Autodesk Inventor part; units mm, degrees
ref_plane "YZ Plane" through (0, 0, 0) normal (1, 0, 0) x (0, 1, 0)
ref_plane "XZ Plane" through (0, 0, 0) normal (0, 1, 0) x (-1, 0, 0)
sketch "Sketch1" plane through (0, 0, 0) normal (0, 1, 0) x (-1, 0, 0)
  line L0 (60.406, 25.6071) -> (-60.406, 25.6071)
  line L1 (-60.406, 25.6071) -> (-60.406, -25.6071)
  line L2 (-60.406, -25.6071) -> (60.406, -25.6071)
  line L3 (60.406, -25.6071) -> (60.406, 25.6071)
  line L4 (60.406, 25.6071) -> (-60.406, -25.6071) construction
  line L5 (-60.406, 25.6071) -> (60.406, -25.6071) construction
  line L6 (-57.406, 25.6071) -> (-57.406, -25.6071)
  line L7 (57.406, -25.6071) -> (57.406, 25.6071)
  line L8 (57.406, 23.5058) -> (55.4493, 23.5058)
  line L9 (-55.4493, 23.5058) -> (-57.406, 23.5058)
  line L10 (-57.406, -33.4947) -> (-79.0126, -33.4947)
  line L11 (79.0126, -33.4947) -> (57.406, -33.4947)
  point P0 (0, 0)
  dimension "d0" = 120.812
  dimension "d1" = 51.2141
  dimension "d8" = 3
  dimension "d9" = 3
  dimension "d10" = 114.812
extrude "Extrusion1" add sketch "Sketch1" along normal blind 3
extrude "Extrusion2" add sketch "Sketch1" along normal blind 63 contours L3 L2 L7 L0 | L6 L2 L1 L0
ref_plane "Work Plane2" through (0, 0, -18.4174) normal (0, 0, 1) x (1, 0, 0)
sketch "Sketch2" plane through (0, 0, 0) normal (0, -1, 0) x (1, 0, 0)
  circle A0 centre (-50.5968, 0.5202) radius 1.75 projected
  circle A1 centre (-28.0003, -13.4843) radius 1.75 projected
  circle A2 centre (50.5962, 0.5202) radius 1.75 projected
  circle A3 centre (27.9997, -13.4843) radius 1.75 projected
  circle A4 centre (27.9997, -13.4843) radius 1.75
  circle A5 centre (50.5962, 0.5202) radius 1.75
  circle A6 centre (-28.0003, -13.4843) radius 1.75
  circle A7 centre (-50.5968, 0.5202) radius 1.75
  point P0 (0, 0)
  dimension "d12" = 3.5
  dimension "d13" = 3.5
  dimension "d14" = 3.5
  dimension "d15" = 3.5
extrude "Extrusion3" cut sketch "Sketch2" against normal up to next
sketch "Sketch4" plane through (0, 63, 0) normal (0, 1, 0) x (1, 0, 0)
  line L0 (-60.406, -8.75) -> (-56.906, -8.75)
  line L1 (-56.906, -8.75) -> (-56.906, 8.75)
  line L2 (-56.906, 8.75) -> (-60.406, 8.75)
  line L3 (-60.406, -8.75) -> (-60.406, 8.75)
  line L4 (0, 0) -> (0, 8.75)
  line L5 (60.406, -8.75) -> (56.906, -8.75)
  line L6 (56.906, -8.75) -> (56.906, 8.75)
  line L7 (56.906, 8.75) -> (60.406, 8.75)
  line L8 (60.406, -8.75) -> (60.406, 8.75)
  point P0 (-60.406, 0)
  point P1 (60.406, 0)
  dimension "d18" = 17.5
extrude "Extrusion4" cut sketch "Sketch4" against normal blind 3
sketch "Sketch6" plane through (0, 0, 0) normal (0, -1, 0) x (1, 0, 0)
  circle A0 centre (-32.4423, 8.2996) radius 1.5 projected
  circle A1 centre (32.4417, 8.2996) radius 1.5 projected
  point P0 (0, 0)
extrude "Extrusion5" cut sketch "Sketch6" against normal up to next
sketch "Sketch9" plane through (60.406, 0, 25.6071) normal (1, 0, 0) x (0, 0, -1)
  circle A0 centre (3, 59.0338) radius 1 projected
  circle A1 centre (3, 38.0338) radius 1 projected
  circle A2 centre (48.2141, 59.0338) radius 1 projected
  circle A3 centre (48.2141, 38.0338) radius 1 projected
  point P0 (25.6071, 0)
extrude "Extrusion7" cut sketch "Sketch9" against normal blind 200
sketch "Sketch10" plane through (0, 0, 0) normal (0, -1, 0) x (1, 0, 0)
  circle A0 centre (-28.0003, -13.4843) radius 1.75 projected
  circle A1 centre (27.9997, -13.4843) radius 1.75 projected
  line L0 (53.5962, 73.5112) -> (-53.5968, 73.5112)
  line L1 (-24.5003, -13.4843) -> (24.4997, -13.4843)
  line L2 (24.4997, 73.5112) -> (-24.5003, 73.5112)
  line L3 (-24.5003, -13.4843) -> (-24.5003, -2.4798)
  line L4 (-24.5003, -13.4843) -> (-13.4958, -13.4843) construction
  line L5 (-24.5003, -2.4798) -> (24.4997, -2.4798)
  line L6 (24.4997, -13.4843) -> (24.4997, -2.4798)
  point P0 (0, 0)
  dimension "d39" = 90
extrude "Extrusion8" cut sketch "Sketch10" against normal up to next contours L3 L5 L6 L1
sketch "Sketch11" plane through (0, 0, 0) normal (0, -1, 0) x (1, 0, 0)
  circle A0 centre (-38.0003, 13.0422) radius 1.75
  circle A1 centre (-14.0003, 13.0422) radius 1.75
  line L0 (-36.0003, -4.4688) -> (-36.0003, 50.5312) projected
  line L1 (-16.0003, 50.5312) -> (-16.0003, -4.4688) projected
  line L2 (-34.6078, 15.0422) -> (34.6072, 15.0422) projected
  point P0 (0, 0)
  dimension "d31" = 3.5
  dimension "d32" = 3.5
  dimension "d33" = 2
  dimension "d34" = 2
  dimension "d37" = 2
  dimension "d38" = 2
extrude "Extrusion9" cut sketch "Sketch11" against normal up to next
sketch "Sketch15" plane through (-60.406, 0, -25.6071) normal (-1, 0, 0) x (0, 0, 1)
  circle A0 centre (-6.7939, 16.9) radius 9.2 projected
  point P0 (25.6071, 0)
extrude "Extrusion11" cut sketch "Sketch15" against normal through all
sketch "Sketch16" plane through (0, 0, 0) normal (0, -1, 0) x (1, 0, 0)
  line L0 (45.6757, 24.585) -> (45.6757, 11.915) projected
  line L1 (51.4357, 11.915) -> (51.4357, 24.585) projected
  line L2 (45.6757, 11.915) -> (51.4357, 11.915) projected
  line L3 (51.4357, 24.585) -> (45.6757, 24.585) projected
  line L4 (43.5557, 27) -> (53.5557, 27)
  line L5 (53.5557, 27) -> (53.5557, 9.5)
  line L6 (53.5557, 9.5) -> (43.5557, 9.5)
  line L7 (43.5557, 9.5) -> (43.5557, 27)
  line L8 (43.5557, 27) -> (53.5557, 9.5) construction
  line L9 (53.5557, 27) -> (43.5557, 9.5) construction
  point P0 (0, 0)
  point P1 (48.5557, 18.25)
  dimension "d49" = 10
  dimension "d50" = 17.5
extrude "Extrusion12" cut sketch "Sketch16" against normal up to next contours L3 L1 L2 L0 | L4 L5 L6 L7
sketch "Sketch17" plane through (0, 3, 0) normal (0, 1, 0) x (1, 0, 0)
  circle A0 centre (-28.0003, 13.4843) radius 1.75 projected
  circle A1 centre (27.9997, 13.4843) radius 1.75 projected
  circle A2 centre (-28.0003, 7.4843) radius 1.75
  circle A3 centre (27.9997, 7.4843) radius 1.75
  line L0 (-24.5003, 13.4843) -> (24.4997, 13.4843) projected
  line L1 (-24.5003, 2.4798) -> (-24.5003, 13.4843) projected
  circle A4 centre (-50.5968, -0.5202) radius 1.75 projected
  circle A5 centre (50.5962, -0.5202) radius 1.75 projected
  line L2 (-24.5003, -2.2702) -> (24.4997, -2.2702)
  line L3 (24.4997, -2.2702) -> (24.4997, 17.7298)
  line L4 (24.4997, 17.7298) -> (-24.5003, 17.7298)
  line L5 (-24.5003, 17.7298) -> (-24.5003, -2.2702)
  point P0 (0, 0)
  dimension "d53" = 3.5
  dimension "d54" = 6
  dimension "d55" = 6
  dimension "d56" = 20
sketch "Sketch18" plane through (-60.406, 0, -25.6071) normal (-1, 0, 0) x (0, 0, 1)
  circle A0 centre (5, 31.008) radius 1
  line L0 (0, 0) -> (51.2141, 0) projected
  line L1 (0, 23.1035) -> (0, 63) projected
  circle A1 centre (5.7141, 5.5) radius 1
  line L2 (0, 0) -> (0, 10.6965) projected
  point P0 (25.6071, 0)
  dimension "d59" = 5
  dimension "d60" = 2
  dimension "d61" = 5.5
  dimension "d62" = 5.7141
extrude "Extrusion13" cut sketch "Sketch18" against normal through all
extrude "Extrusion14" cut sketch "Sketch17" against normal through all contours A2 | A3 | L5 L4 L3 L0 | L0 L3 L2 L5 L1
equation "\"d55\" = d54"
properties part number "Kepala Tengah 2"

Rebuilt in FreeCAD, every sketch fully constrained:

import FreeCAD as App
import Part
import Sketcher
from FreeCAD import Vector

doc = App.newDocument("Part")
body = doc.addObject("PartDesign::Body", "Body")

# Sketch on XZ plane
sketch1 = body.newObject("Sketcher::SketchObject", "Sketch")
sketch1.AttachmentSupport = (doc.getObject("XZ_Plane"), [""])
sketch1.MapMode = "FlatFace"
sketch1.addGeometry(Part.LineSegment(Vector(-60, -26, 0), Vector(-60, 26, 0)), False)
sketch1.addGeometry(Part.LineSegment(Vector(-60, 26, 0), Vector(60, 26, 0)), False)
sketch1.addGeometry(Part.LineSegment(Vector(60, 26, 0), Vector(60, -26, 0)), False)
sketch1.addGeometry(Part.LineSegment(Vector(60, -26, 0), Vector(-60, -26, 0)), False)
sketch1.addConstraint(Sketcher.Constraint("Coincident", 0, 2, 1, 1))
sketch1.addConstraint(Sketcher.Constraint("Coincident", 1, 2, 2, 1))
sketch1.addConstraint(Sketcher.Constraint("Coincident", 2, 2, 3, 1))
sketch1.addConstraint(Sketcher.Constraint("Coincident", 3, 2, 0, 1))
sketch1.addConstraint(Sketcher.Constraint("Vertical", 0))
sketch1.addConstraint(Sketcher.Constraint("Horizontal", 1))
sketch1.addConstraint(Sketcher.Constraint("Vertical", 2))
sketch1.addConstraint(Sketcher.Constraint("Horizontal", 3))
sketch1.addConstraint(Sketcher.Constraint("Symmetric", 0, 2, 2, 2, -1, 1))
sketch1.addConstraint(Sketcher.Constraint("DistanceX", 1, 1, 1, 2, 120.812))
sketch1.addConstraint(Sketcher.Constraint("DistanceY", 0, 1, 0, 2, 51.2142))
pad1 = body.newObject("PartDesign::Pad", "Pad")
pad1.Profile = sketch1
pad1.Length = 3
pad1.Reversed = True

# Sketch on XZ plane
sketch2 = body.newObject("Sketcher::SketchObject", "Sketch001")
sketch2.AttachmentSupport = (doc.getObject("XZ_Plane"), [""])
sketch2.MapMode = "FlatFace"
sketch2.addGeometry(Part.LineSegment(Vector(-60.4, -25.6, 0), Vector(-60.4, 25.6, 0)), False)
sketch2.addGeometry(Part.LineSegment(Vector(-60.4, 25.6, 0), Vector(-57.4, 25.6, 0)), False)
sketch2.addGeometry(Part.LineSegment(Vector(-57.4, 25.6, 0), Vector(-57.4, -25.6, 0)), False)
sketch2.addGeometry(Part.LineSegment(Vector(-57.4, -25.6, 0), Vector(-60.4, -25.6, 0)), False)
sketch2.addGeometry(Part.LineSegment(Vector(57.4, -25.6, 0), Vector(57.4, 25.6, 0)), False)
sketch2.addGeometry(Part.LineSegment(Vector(57.4, 25.6, 0), Vector(60.4, 25.6, 0)), False)
sketch2.addGeometry(Part.LineSegment(Vector(60.4, 25.6, 0), Vector(60.4, -25.6, 0)), False)
sketch2.addGeometry(Part.LineSegment(Vector(60.4, -25.6, 0), Vector(57.4, -25.6, 0)), False)
sketch2.addConstraint(Sketcher.Constraint("Coincident", 0, 2, 1, 1))
sketch2.addConstraint(Sketcher.Constraint("Coincident", 1, 2, 2, 1))
sketch2.addConstraint(Sketcher.Constraint("Coincident", 2, 2, 3, 1))
sketch2.addConstraint(Sketcher.Constraint("Coincident", 3, 2, 0, 1))
sketch2.addConstraint(Sketcher.Constraint("Coincident", 4, 2, 5, 1))
sketch2.addConstraint(Sketcher.Constraint("Coincident", 5, 2, 6, 1))
sketch2.addConstraint(Sketcher.Constraint("Coincident", 6, 2, 7, 1))
sketch2.addConstraint(Sketcher.Constraint("Coincident", 7, 2, 4, 1))
sketch2.addConstraint(Sketcher.Constraint("Vertical", 0))
sketch2.addConstraint(Sketcher.Constraint("Horizontal", 1))
sketch2.addConstraint(Sketcher.Constraint("Vertical", 2))
sketch2.addConstraint(Sketcher.Constraint("Horizontal", 3))
sketch2.addConstraint(Sketcher.Constraint("Vertical", 4))
sketch2.addConstraint(Sketcher.Constraint("Horizontal", 5))
sketch2.addConstraint(Sketcher.Constraint("Vertical", 6))
sketch2.addConstraint(Sketcher.Constraint("Horizontal", 7))
sketch2.addConstraint(Sketcher.Constraint("Symmetric", 2, 2, 4, 2, -1, 1))
sketch2.addConstraint(Sketcher.Constraint("Symmetric", 0, 2, 6, 2, -1, 1))
sketch2.addConstraint(Sketcher.Constraint("Horizontal", 1, 2, 4, 2))
sketch2.addConstraint(Sketcher.Constraint("DistanceX", 1, 1, 1, 2, 3.0))
sketch2.addConstraint(Sketcher.Constraint("DistanceY", 0, 1, 0, 2, 51.2142))
sketch2.addConstraint(Sketcher.Constraint("DistanceX", 1, 2, 4, 2, 114.812))
pad2 = body.newObject("PartDesign::Pad", "Pad001")
pad2.Profile = sketch2
pad2.Length = 63
pad2.Reversed = True

# Sketch on XZ plane
sketch3 = body.newObject("Sketcher::SketchObject", "Sketch002")
sketch3.AttachmentSupport = (doc.getObject("XZ_Plane"), [""])
sketch3.MapMode = "FlatFace"
sketch3.addGeometry(Part.Circle(Vector(-50.6, 0.5, 0), Vector(0, 0, 1), 1.8), False)
sketch3.addGeometry(Part.Circle(Vector(-28, -13.5, 0), Vector(0, 0, 1), 1.8), False)
sketch3.addGeometry(Part.Circle(Vector(50.6, 0.5, 0), Vector(0, 0, 1), 1.8), False)
sketch3.addGeometry(Part.Circle(Vector(28, -13.5, 0), Vector(0, 0, 1), 1.8), False)
sketch3.addConstraint(Sketcher.Constraint("Equal", 0, 1))
sketch3.addConstraint(Sketcher.Constraint("Equal", 1, 2))
sketch3.addConstraint(Sketcher.Constraint("Equal", 2, 3))
sketch3.addConstraint(Sketcher.Constraint("Horizontal", 0, 3, 2, 3))
sketch3.addConstraint(Sketcher.Constraint("Horizontal", 1, 3, 3, 3))
sketch3.addConstraint(Sketcher.Constraint("Diameter", 0, 3.5))
sketch3.addConstraint(Sketcher.Constraint("DistanceX", 1, 3, 3, 3, 56.0))
sketch3.addConstraint(Sketcher.Constraint("DistanceX", 0, 3, 2, 3, 101.193))
sketch3.addConstraint(Sketcher.Constraint("DistanceX", 0, 3, -1, 1, 50.5968))
sketch3.addConstraint(Sketcher.Constraint("DistanceY", -1, 1, 0, 3, 0.5202))
sketch3.addConstraint(Sketcher.Constraint("DistanceX", 1, 3, -1, 1, 28.0003))
sketch3.addConstraint(Sketcher.Constraint("DistanceY", 1, 3, -1, 1, 13.4843))
pocket1 = body.newObject("PartDesign::Pocket", "Pocket")
pocket1.Profile = sketch3
pocket1.Type = "UpToFirst"

# Sketch on XZ plane
sketch4 = body.newObject("Sketcher::SketchObject", "Sketch003")
sketch4.AttachmentSupport = (doc.getObject("XZ_Plane"), [""])
sketch4.MapMode = "FlatFace"
sketch4.AttachmentOffset = App.Placement(Vector(0, 0, -63), App.Rotation())
sketch4.addGeometry(Part.LineSegment(Vector(-60.4, -8.8, 0), Vector(-60.4, 8.8, 0)), False)
sketch4.addGeometry(Part.LineSegment(Vector(-60.4, 8.8, 0), Vector(-56.9, 8.8, 0)), False)
sketch4.addGeometry(Part.LineSegment(Vector(-56.9, 8.8, 0), Vector(-56.9, -8.8, 0)), False)
sketch4.addGeometry(Part.LineSegment(Vector(-56.9, -8.8, 0), Vector(-60.4, -8.8, 0)), False)
sketch4.addGeometry(Part.LineSegment(Vector(56.9, 8.8, 0), Vector(60.4, 8.8, 0)), False)
sketch4.addGeometry(Part.LineSegment(Vector(60.4, 8.8, 0), Vector(60.4, -8.8, 0)), False)
sketch4.addGeometry(Part.LineSegment(Vector(60.4, -8.8, 0), Vector(56.9, -8.8, 0)), False)
sketch4.addGeometry(Part.LineSegment(Vector(56.9, -8.8, 0), Vector(56.9, 8.8, 0)), False)
sketch4.addConstraint(Sketcher.Constraint("Coincident", 0, 2, 1, 1))
sketch4.addConstraint(Sketcher.Constraint("Coincident", 1, 2, 2, 1))
sketch4.addConstraint(Sketcher.Constraint("Coincident", 2, 2, 3, 1))
sketch4.addConstraint(Sketcher.Constraint("Coincident", 3, 2, 0, 1))
sketch4.addConstraint(Sketcher.Constraint("Coincident", 4, 2, 5, 1))
sketch4.addConstraint(Sketcher.Constraint("Coincident", 5, 2, 6, 1))
sketch4.addConstraint(Sketcher.Constraint("Coincident", 6, 2, 7, 1))
sketch4.addConstraint(Sketcher.Constraint("Coincident", 7, 2, 4, 1))
sketch4.addConstraint(Sketcher.Constraint("Vertical", 0))
sketch4.addConstraint(Sketcher.Constraint("Horizontal", 1))
sketch4.addConstraint(Sketcher.Constraint("Vertical", 2))
sketch4.addConstraint(Sketcher.Constraint("Horizontal", 3))
sketch4.addConstraint(Sketcher.Constraint("Horizontal", 4))
sketch4.addConstraint(Sketcher.Constraint("Vertical", 5))
sketch4.addConstraint(Sketcher.Constraint("Horizontal", 6))
sketch4.addConstraint(Sketcher.Constraint("Vertical", 7))
sketch4.addConstraint(Sketcher.Constraint("Symmetric", 3, 2, 4, 2, -1, 1))
sketch4.addConstraint(Sketcher.Constraint("Symmetric", 1, 2, 6, 2, -1, 1))
sketch4.addConstraint(Sketcher.Constraint("Horizontal", 1, 2, 4, 2))
sketch4.addConstraint(Sketcher.Constraint("DistanceY", 0, 1, 0, 2, 17.5))
sketch4.addConstraint(Sketcher.Constraint("DistanceX", 1, 1, 1, 2, 3.5))
sketch4.addConstraint(Sketcher.Constraint("DistanceX", 0, 2, -1, 1, 60.406))
pocket2 = body.newObject("PartDesign::Pocket", "Pocket001")
pocket2.Profile = sketch4
pocket2.Length = 3
pocket2.Reversed = True

# Sketch on XZ plane
sketch5 = body.newObject("Sketcher::SketchObject", "Sketch004")
sketch5.AttachmentSupport = (doc.getObject("XZ_Plane"), [""])
sketch5.MapMode = "FlatFace"
sketch5.addGeometry(Part.Circle(Vector(-32.4, 8.3, 0), Vector(0, 0, 1), 1.5), False)
sketch5.addGeometry(Part.Circle(Vector(32.4, 8.3, 0), Vector(0, 0, 1), 1.5), False)
sketch5.addConstraint(Sketcher.Constraint("Equal", 0, 1))
sketch5.addConstraint(Sketcher.Constraint("Horizontal", 0, 3, 1, 3))
sketch5.addConstraint(Sketcher.Constraint("Diameter", 0, 3.0))
sketch5.addConstraint(Sketcher.Constraint("DistanceX", 0, 3, 1, 3, 64.884))
sketch5.addConstraint(Sketcher.Constraint("DistanceX", 0, 3, -1, 1, 32.4423))
sketch5.addConstraint(Sketcher.Constraint("DistanceY", -1, 1, 0, 3, 8.2996))
pocket3 = body.newObject("PartDesign::Pocket", "Pocket002")
pocket3.Profile = sketch5
pocket3.Length = 3

# Sketch on YZ plane
sketch6 = body.newObject("Sketcher::SketchObject", "Sketch005")
sketch6.AttachmentSupport = (doc.getObject("YZ_Plane"), [""])
sketch6.MapMode = "FlatFace"
sketch6.AttachmentOffset = App.Placement(Vector(0, 0, 60.406), App.Rotation())
sketch6.addGeometry(Part.Circle(Vector(59, 22.6, 0), Vector(0, 0, 1), 1), False)
sketch6.addGeometry(Part.Circle(Vector(38, 22.6, 0), Vector(0, 0, 1), 1), False)
sketch6.addGeometry(Part.Circle(Vector(59, -22.6, 0), Vector(0, 0, 1), 1), False)
sketch6.addGeometry(Part.Circle(Vector(38, -22.6, 0), Vector(0, 0, 1), 1), False)
sketch6.addConstraint(Sketcher.Constraint("Equal", 0, 1))
sketch6.addConstraint(Sketcher.Constraint("Equal", 1, 2))
sketch6.addConstraint(Sketcher.Constraint("Equal", 2, 3))
sketch6.addConstraint(Sketcher.Constraint("Symmetric", 0, 3, 2, 3, -1))
sketch6.addConstraint(Sketcher.Constraint("Symmetric", 1, 3, 3, 3, -1))
sketch6.addConstraint(Sketcher.Constraint("Horizontal", 0, 3, 1, 3))
sketch6.addConstraint(Sketcher.Constraint("Diameter", 0, 2.0))
sketch6.addConstraint(Sketcher.Constraint("DistanceX", 1, 3, 0, 3, 21.0))
sketch6.addConstraint(Sketcher.Constraint("DistanceY", -1, 1, 0, 3, 22.607))
sketch6.addConstraint(Sketcher.Constraint("DistanceX", -1, 1, 0, 3, 59.0338))
pocket4 = body.newObject("PartDesign::Pocket", "Pocket003")
pocket4.Profile = sketch6
pocket4.Length = 200

# Sketch on XZ plane
sketch7 = body.newObject("Sketcher::SketchObject", "Sketch006")
sketch7.AttachmentSupport = (doc.getObject("XZ_Plane"), [""])
sketch7.MapMode = "FlatFace"
sketch7.addGeometry(Part.LineSegment(Vector(-25, -2, 0), Vector(-25, -13, 0)), False)
sketch7.addGeometry(Part.LineSegment(Vector(-25, -13, 0), Vector(24, -13, 0)), False)
sketch7.addGeometry(Part.LineSegment(Vector(24, -13, 0), Vector(24, -2, 0)), False)
sketch7.addGeometry(Part.LineSegment(Vector(24, -2, 0), Vector(-25, -2, 0)), False)
sketch7.addConstraint(Sketcher.Constraint("Coincident", 0, 2, 1, 1))
sketch7.addConstraint(Sketcher.Constraint("Coincident", 1, 2, 2, 1))
sketch7.addConstraint(Sketcher.Constraint("Coincident", 2, 2, 3, 1))
sketch7.addConstraint(Sketcher.Constraint("Coincident", 3, 2, 0, 1))
sketch7.addConstraint(Sketcher.Constraint("Vertical", 0))
sketch7.addConstraint(Sketcher.Constraint("Horizontal", 1))
sketch7.addConstraint(Sketcher.Constraint("Vertical", 2))
sketch7.addConstraint(Sketcher.Constraint("Horizontal", 3))
sketch7.addConstraint(Sketcher.Constraint("DistanceX", 1, 1, 1, 2, 49.0))
sketch7.addConstraint(Sketcher.Constraint("DistanceY", 0, 2, 0, 1, 11.0045))
sketch7.addConstraint(Sketcher.Constraint("DistanceX", 0, 2, -1, 1, 24.5003))
sketch7.addConstraint(Sketcher.Constraint("DistanceY", 0, 2, -1, 1, 13.4843))
pocket5 = body.newObject("PartDesign::Pocket", "Pocket004")
pocket5.Profile = sketch7
pocket5.Type = "UpToFirst"

# Sketch on XZ plane
sketch8 = body.newObject("Sketcher::SketchObject", "Sketch007")
sketch8.AttachmentSupport = (doc.getObject("XZ_Plane"), [""])
sketch8.MapMode = "FlatFace"
sketch8.addGeometry(Part.Circle(Vector(-38, 13, 0), Vector(0, 0, 1), 1.8), False)
sketch8.addGeometry(Part.Circle(Vector(-14, 13, 0), Vector(0, 0, 1), 1.8), False)
sketch8.addConstraint(Sketcher.Constraint("Equal", 0, 1))
sketch8.addConstraint(Sketcher.Constraint("Horizontal", 0, 3, 1, 3))
sketch8.addConstraint(Sketcher.Constraint("Diameter", 0, 3.5))
sketch8.addConstraint(Sketcher.Constraint("DistanceX", 0, 3, 1, 3, 24.0))
sketch8.addConstraint(Sketcher.Constraint("DistanceX", 0, 3, -1, 1, 38.0003))
sketch8.addConstraint(Sketcher.Constraint("DistanceY", -1, 1, 0, 3, 13.0422))
pocket6 = body.newObject("PartDesign::Pocket", "Pocket005")
pocket6.Profile = sketch8
pocket6.Type = "UpToFirst"

# Sketch on YZ plane
sketch9 = body.newObject("Sketcher::SketchObject", "Sketch008")
sketch9.AttachmentSupport = (doc.getObject("YZ_Plane"), [""])
sketch9.MapMode = "FlatFace"
sketch9.AttachmentOffset = App.Placement(Vector(0, 0, -60.406), App.Rotation())
sketch9.addGeometry(Part.Circle(Vector(17, -32, 0), Vector(0, 0, 1), 9), False)
sketch9.addConstraint(Sketcher.Constraint("Diameter", 0, 18.4))
sketch9.addConstraint(Sketcher.Constraint("DistanceX", -1, 1, 0, 3, 16.9))
sketch9.addConstraint(Sketcher.Constraint("DistanceY", 0, 3, -1, 1, 32.401))
pocket7 = body.newObject("PartDesign::Pocket", "Pocket006")
pocket7.Profile = sketch9
pocket7.Type = "ThroughAll"
pocket7.Reversed = True

# Sketch on XZ plane
sketch10 = body.newObject("Sketcher::SketchObject", "Sketch009")
sketch10.AttachmentSupport = (doc.getObject("XZ_Plane"), [""])
sketch10.MapMode = "FlatFace"
sketch10.addGeometry(Part.LineSegment(Vector(54, 27, 0), Vector(44, 27, 0)), False)
sketch10.addGeometry(Part.LineSegment(Vector(44, 27, 0), Vector(44, 10, 0)), False)
sketch10.addGeometry(Part.LineSegment(Vector(44, 10, 0), Vector(54, 10, 0)), False)
sketch10.addGeometry(Part.LineSegment(Vector(54, 10, 0), Vector(54, 27, 0)), False)
sketch10.addConstraint(Sketcher.Constraint("Coincident", 0, 2, 1, 1))
sketch10.addConstraint(Sketcher.Constraint("Coincident", 1, 2, 2, 1))
sketch10.addConstraint(Sketcher.Constraint("Coincident", 2, 2, 3, 1))
sketch10.addConstraint(Sketcher.Constraint("Coincident", 3, 2, 0, 1))
sketch10.addConstraint(Sketcher.Constraint("Horizontal", 0))
sketch10.addConstraint(Sketcher.Constraint("Vertical", 1))
sketch10.addConstraint(Sketcher.Constraint("Horizontal", 2))
sketch10.addConstraint(Sketcher.Constraint("Vertical", 3))
sketch10.addConstraint(Sketcher.Constraint("DistanceX", 0, 2, 0, 1, 10.0))
sketch10.addConstraint(Sketcher.Constraint("DistanceY", 1, 2, 1, 1, 17.5))
sketch10.addConstraint(Sketcher.Constraint("DistanceY", -1, 1, 0, 2, 27.0))
sketch10.addConstraint(Sketcher.Constraint("DistanceX", -1, 1, 0, 2, 43.5557))
pocket8 = body.newObject("PartDesign::Pocket", "Pocket007")
pocket8.Profile = sketch10
pocket8.Type = "UpToFirst"

# Sketch on YZ plane
sketch11 = body.newObject("Sketcher::SketchObject", "Sketch010")
sketch11.AttachmentSupport = (doc.getObject("YZ_Plane"), [""])
sketch11.MapMode = "FlatFace"
sketch11.AttachmentOffset = App.Placement(Vector(0, 0, -60.406), App.Rotation())
sketch11.addGeometry(Part.Circle(Vector(31, -20.6, 0), Vector(0, 0, 1), 1), False)
sketch11.addGeometry(Part.Circle(Vector(5.5, -19.9, 0), Vector(0, 0, 1), 1), False)
sketch11.addConstraint(Sketcher.Constraint("Equal", 0, 1))
sketch11.addConstraint(Sketcher.Constraint("Diameter", 0, 2.0))
sketch11.addConstraint(Sketcher.Constraint("DistanceX", -1, 1, 1, 3, 5.5))
sketch11.addConstraint(Sketcher.Constraint("DistanceX", -1, 1, 0, 3, 31.008))
sketch11.addConstraint(Sketcher.Constraint("DistanceY", 0, 3, -1, 1, 20.607))
sketch11.addConstraint(Sketcher.Constraint("DistanceY", 1, 3, -1, 1, 19.893))
pocket9 = body.newObject("PartDesign::Pocket", "Pocket008")
pocket9.Profile = sketch11
pocket9.Type = "ThroughAll"
pocket9.Reversed = True

# Sketch on XZ plane
sketch12 = body.newObject("Sketcher::SketchObject", "Sketch011")
sketch12.AttachmentSupport = (doc.getObject("XZ_Plane"), [""])
sketch12.MapMode = "FlatFace"
sketch12.AttachmentOffset = App.Placement(Vector(0, 0, -3), App.Rotation())
sketch12.addGeometry(Part.Circle(Vector(-28, -7.5, 0), Vector(0, 0, 1), 1.8), False)
sketch12.addGeometry(Part.Circle(Vector(28, -7.5, 0), Vector(0, 0, 1), 1.8), False)
sketch12.addGeometry(Part.LineSegment(Vector(-24.5, -17.7, 0), Vector(-24.5, 2.3, 0)), False)
sketch12.addGeometry(Part.LineSegment(Vector(-24.5, 2.3, 0), Vector(24.5, 2.3, 0)), False)
sketch12.addGeometry(Part.LineSegment(Vector(24.5, 2.3, 0), Vector(24.5, -17.7, 0)), False)
sketch12.addGeometry(Part.LineSegment(Vector(24.5, -17.7, 0), Vector(-24.5, -17.7, 0)), False)
sketch12.addConstraint(Sketcher.Constraint("Coincident", 2, 2, 3, 1))
sketch12.addConstraint(Sketcher.Constraint("Coincident", 3, 2, 4, 1))
sketch12.addConstraint(Sketcher.Constraint("Coincident", 4, 2, 5, 1))
sketch12.addConstraint(Sketcher.Constraint("Coincident", 5, 2, 2, 1))
sketch12.addConstraint(Sketcher.Constraint("Vertical", 2))
sketch12.addConstraint(Sketcher.Constraint("Horizontal", 3))
sketch12.addConstraint(Sketcher.Constraint("Vertical", 4))
sketch12.addConstraint(Sketcher.Constraint("Horizontal", 5))
sketch12.addConstraint(Sketcher.Constraint("Equal", 0, 1))
sketch12.addConstraint(Sketcher.Constraint("Horizontal", 0, 3, 1, 3))
sketch12.addConstraint(Sketcher.Constraint("Diameter", 0, 3.5))
sketch12.addConstraint(Sketcher.Constraint("DistanceY", 2, 1, 2, 2, 20.0))
sketch12.addConstraint(Sketcher.Constraint("DistanceX", 0, 3, 2, 2, 3.5))
sketch12.addConstraint(Sketcher.Constraint("DistanceX", 3, 2, 1, 3, 3.5))
sketch12.addConstraint(Sketcher.Constraint("DistanceX", 3, 1, 3, 2, 49.0))
sketch12.addConstraint(Sketcher.Constraint("DistanceX", 0, 3, -1, 1, 28.0003))
sketch12.addConstraint(Sketcher.Constraint("DistanceY", 0, 3, -1, 1, 7.4843))
sketch12.addConstraint(Sketcher.Constraint("DistanceY", -1, 1, 2, 2, 2.2702))
pocket10 = body.newObject("PartDesign::Pocket", "Pocket009")
pocket10.Profile = sketch12
pocket10.Type = "ThroughAll"
pocket10.Reversed = True

doc.recompute()
